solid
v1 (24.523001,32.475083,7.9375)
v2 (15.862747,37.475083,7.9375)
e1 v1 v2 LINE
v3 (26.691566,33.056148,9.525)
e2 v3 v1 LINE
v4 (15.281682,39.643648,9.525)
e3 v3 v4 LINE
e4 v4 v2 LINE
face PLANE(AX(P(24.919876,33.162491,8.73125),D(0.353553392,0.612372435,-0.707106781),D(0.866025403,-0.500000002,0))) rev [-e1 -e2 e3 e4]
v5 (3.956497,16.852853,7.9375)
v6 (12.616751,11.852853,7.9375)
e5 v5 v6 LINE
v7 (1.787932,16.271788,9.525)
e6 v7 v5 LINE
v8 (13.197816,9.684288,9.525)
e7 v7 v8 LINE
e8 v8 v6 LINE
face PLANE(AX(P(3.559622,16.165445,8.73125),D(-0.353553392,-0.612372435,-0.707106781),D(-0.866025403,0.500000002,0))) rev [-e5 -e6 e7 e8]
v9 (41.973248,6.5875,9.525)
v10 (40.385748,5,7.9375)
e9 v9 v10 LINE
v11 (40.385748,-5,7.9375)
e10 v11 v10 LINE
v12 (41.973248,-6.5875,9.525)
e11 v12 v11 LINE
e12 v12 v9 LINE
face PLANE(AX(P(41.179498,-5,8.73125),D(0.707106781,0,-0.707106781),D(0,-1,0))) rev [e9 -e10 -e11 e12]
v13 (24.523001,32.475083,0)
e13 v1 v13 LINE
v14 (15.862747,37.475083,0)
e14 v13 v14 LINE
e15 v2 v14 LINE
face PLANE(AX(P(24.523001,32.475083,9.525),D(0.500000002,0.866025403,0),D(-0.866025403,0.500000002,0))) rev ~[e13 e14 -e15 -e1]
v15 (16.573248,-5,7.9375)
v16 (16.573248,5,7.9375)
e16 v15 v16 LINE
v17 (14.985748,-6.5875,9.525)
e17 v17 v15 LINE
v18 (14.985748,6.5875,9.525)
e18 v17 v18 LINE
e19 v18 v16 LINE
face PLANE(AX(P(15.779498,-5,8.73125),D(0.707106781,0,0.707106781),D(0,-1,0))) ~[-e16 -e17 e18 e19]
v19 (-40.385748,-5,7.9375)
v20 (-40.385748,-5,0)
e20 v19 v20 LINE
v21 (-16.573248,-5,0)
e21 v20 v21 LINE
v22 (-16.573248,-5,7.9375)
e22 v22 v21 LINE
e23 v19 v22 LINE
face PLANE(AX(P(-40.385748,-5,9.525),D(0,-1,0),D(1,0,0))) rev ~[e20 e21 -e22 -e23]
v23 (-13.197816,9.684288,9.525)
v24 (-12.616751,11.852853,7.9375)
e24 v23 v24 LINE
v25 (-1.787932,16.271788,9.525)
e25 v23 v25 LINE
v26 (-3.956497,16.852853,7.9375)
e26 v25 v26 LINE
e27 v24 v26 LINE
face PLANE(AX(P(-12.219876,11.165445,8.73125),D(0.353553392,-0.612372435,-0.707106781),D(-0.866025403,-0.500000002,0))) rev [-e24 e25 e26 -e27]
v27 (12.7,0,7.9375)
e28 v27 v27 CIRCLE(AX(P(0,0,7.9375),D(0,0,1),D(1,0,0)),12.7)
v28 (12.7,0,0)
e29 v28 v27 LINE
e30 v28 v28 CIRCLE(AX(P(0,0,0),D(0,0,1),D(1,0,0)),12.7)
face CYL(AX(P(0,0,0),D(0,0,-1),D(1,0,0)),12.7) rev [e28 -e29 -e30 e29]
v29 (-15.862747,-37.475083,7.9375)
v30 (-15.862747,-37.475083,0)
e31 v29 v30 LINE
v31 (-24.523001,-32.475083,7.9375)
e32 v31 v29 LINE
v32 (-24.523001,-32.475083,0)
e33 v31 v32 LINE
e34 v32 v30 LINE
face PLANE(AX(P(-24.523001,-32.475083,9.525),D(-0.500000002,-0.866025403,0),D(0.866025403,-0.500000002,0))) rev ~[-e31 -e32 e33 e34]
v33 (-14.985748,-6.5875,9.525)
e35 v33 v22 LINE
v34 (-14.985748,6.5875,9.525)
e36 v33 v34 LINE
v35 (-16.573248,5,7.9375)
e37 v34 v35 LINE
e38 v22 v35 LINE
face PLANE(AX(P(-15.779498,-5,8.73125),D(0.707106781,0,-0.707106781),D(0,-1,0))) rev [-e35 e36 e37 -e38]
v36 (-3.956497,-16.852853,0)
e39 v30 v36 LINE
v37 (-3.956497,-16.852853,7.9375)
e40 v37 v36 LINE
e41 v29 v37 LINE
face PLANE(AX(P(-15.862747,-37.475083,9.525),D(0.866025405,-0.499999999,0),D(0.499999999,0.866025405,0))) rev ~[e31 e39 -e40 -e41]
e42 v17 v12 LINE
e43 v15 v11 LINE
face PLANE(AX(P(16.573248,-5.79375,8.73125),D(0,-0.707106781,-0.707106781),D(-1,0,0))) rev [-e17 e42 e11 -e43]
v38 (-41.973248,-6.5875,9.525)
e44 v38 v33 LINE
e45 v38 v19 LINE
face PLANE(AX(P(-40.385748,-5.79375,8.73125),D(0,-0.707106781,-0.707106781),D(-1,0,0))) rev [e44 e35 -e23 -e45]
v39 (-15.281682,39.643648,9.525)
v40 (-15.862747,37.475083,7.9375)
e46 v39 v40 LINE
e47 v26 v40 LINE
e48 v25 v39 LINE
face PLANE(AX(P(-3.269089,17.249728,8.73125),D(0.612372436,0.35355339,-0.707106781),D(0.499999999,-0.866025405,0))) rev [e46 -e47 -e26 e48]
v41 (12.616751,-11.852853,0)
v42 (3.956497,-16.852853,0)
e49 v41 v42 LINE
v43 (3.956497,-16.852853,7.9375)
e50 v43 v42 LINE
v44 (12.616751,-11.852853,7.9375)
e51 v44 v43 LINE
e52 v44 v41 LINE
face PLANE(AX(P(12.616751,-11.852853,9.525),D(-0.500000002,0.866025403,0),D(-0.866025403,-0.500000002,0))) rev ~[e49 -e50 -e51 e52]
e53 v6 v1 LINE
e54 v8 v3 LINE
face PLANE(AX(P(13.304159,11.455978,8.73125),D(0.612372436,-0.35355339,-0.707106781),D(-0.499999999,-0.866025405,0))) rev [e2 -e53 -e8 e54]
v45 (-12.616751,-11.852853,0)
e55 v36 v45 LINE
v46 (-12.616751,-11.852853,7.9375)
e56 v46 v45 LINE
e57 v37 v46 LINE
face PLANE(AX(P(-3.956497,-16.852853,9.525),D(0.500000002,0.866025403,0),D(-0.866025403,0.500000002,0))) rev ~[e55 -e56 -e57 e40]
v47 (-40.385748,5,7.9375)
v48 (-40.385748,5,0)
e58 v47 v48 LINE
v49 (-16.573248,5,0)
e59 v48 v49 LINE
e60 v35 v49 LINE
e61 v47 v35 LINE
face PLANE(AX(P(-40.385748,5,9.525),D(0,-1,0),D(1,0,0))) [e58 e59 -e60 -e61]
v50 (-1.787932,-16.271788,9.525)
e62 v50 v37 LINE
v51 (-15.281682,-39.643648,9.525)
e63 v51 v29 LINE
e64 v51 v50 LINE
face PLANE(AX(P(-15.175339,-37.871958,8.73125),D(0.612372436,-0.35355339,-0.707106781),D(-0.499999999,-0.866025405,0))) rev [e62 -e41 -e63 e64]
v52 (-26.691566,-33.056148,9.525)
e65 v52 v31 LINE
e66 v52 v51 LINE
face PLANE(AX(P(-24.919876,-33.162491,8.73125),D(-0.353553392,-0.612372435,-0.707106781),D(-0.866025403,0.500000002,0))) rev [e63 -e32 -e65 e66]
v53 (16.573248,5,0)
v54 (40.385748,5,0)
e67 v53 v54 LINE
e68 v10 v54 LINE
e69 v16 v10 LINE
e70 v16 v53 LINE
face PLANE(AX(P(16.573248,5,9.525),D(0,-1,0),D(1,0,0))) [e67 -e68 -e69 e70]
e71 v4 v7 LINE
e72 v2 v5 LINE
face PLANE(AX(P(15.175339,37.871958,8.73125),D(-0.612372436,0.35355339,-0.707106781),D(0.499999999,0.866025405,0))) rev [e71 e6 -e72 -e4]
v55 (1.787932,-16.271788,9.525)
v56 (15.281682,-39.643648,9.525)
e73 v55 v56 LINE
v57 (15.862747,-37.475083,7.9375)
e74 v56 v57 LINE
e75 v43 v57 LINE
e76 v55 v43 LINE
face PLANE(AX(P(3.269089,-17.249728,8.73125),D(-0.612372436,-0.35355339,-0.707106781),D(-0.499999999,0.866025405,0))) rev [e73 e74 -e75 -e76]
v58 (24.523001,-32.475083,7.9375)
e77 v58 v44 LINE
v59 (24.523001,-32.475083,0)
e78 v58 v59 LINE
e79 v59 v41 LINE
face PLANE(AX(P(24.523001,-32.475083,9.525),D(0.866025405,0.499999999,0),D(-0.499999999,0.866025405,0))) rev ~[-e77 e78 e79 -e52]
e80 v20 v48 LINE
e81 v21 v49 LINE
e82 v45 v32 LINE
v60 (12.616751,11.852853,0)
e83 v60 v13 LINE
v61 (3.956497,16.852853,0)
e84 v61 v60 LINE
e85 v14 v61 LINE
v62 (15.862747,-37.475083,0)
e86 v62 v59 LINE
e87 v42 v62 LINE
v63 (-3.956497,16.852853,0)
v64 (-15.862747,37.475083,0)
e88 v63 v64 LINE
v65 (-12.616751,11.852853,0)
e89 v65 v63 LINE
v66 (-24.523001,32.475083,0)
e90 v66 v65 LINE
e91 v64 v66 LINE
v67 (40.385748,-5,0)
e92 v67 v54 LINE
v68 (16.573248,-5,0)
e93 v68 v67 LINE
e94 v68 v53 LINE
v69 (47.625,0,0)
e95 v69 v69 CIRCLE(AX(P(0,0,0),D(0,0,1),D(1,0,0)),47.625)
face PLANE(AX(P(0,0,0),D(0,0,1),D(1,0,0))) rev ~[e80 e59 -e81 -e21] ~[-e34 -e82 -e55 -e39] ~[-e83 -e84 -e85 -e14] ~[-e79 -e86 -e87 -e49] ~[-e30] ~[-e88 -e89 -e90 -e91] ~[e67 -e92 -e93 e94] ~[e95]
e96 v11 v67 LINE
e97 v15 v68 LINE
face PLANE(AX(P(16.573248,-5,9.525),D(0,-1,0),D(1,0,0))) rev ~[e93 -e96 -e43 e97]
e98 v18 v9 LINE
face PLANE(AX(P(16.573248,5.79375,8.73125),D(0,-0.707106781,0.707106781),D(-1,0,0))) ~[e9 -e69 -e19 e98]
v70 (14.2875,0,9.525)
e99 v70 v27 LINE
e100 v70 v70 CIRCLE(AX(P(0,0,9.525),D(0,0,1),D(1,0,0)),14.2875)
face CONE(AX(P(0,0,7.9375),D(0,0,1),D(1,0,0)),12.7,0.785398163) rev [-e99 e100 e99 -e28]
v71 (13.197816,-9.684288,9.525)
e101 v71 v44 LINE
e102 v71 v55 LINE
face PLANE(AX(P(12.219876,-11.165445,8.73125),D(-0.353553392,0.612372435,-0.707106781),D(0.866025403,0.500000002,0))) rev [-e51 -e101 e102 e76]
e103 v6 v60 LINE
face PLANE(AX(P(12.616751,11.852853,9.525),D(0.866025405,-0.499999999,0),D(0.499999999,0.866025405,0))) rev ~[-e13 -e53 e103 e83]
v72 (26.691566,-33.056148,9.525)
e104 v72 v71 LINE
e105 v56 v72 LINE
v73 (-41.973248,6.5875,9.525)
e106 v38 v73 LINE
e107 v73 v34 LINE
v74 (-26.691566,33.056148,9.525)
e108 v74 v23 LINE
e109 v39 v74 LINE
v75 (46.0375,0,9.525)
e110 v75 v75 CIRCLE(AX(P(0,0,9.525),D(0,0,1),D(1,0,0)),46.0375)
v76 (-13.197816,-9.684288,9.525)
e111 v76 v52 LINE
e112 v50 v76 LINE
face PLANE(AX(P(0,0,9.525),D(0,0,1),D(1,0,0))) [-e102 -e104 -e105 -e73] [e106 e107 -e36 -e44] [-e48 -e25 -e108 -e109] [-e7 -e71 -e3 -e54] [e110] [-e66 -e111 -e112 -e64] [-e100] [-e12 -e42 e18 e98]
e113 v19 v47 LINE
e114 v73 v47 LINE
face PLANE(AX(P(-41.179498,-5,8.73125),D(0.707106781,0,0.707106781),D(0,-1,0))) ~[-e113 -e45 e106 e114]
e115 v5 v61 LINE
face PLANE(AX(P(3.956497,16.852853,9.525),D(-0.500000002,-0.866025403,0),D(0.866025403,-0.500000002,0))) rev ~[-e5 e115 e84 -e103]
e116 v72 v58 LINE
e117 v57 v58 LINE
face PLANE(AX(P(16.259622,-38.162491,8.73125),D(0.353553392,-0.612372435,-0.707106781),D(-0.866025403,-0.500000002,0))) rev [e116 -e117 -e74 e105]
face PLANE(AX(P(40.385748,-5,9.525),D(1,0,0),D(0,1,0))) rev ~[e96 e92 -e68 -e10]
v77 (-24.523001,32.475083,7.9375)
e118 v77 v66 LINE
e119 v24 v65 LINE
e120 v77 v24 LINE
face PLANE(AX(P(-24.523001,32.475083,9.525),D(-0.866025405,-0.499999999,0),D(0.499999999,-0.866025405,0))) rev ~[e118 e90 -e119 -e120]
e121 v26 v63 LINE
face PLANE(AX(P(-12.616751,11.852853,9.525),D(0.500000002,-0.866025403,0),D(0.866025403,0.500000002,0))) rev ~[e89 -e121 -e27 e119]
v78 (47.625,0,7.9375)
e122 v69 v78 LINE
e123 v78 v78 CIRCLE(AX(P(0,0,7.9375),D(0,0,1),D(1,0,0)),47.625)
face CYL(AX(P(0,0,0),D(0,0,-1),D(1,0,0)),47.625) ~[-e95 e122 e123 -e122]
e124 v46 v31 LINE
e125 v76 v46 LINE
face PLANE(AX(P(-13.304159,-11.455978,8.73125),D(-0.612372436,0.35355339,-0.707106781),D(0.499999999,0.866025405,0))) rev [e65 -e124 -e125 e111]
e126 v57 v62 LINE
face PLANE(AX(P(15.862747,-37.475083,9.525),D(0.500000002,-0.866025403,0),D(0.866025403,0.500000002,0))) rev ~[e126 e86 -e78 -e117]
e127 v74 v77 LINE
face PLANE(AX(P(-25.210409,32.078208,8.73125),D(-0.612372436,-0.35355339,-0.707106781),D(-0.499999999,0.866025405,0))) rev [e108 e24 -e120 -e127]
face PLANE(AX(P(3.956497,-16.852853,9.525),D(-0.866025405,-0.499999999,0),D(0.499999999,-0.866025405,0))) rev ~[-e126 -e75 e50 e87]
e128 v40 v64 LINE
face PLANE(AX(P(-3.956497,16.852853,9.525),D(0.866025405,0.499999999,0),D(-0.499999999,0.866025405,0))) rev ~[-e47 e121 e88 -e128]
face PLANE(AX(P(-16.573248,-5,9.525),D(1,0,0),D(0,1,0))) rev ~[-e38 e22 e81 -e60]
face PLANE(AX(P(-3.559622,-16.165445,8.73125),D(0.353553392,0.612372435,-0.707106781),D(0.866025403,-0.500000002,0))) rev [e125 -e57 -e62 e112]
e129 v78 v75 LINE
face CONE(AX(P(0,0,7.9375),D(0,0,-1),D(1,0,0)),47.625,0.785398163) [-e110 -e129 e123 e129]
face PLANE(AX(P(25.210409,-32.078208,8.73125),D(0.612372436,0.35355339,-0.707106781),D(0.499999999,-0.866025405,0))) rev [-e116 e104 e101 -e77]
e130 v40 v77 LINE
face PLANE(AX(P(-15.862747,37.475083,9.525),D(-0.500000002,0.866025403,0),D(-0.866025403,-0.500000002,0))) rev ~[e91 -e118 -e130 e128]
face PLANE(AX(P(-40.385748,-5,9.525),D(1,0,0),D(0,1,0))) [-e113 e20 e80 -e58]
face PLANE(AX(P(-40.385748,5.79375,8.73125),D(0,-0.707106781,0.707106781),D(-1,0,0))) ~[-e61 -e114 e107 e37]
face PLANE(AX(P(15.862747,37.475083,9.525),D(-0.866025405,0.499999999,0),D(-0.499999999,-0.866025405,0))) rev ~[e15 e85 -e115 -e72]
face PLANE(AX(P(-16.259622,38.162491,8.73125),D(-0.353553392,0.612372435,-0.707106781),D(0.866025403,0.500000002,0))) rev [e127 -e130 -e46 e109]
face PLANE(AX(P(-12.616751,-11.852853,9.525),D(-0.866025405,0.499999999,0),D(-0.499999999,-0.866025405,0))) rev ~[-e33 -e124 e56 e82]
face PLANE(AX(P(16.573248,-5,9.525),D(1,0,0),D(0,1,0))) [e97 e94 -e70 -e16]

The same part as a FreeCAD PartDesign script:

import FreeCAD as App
import Part
import Sketcher

V = App.Vector
Q = App.Units.Quantity


def edges_at(feature, points):
    """Names of the edges that pass closest to the given points."""
    edges = feature.Shape.Edges
    near = lambda p: min(range(len(edges)), key=lambda i: edges[i].distToShape(Part.Vertex(*p))[0])
    return sorted({f"Edge{near(p) + 1}" for p in points})

doc = App.newDocument("Part")
body = doc.addObject("PartDesign::Body", "Body")

sketch1 = body.newObject("Sketcher::SketchObject", "Sketch")
sketch1.AttachmentSupport = (doc.getObject("XY_Plane"), [""])
sketch1.MapMode = "FlatFace"
sketch1.addGeometry([
    Part.Circle(V(0, 0, 0), V(0, 0, 1), 48),
    Part.Circle(V(0, 0, 0), V(0, 0, 1), 13),
], False)
sketch1.addConstraint([
    Sketcher.Constraint("Coincident", 0, 3, -1, 1),
    Sketcher.Constraint("Coincident", 1, 3, -1, 1),
    Sketcher.Constraint("Diameter", 1, Q("1 in")),
    Sketcher.Constraint("Diameter", 0, Q("3.75 in")),
])
pad1 = body.newObject("PartDesign::Pad", "Pad")
pad1.Profile = sketch1
pad1.Length = Q("0.375 in")

sketch2 = body.newObject("Sketcher::SketchObject", "Sketch001")
sketch2.AttachmentSupport = (doc.getObject("XY_Plane"), [""])
sketch2.MapMode = "FlatFace"
sketch2.AttachmentOffset = App.Placement(V(0, 0, 0.375 * 25.4), App.Rotation())
sketch2.addGeometry([
    Part.LineSegment(V(-40, 5, 0), V(-40, -5, 0)),
    Part.LineSegment(V(-40, -5, 0), V(-17, -5, 0)),
    Part.LineSegment(V(-17, -5, 0), V(-17, 5, 0)),
    Part.LineSegment(V(-17, 5, 0), V(-40, 5, 0)),
    Part.LineSegment(V(-13, 12, 0), V(-4, 17, 0)),
    Part.LineSegment(V(-4, 17, 0), V(-16, 37, 0)),
    Part.LineSegment(V(-16, 37, 0), V(-25, 32, 0)),
    Part.LineSegment(V(-25, 32, 0), V(-13, 12, 0)),
    Part.LineSegment(V(4, 17, 0), V(13, 12, 0)),
    Part.LineSegment(V(13, 12, 0), V(25, 32, 0)),
    Part.LineSegment(V(25, 32, 0), V(16, 37, 0)),
    Part.LineSegment(V(16, 37, 0), V(4, 17, 0)),
    Part.LineSegment(V(17, 5, 0), V(17, -5, 0)),
    Part.LineSegment(V(17, -5, 0), V(40, -5, 0)),
    Part.LineSegment(V(40, -5, 0), V(40, 5, 0)),
    Part.LineSegment(V(40, 5, 0), V(17, 5, 0)),
    Part.LineSegment(V(13, -12, 0), V(4, -17, 0)),
    Part.LineSegment(V(4, -17, 0), V(16, -37, 0)),
    Part.LineSegment(V(16, -37, 0), V(25, -32, 0)),
    Part.LineSegment(V(25, -32, 0), V(13, -12, 0)),
    Part.LineSegment(V(-4, -17, 0), V(-13, -12, 0)),
    Part.LineSegment(V(-13, -12, 0), V(-25, -32, 0)),
    Part.LineSegment(V(-25, -32, 0), V(-16, -37, 0)),
    Part.LineSegment(V(-16, -37, 0), V(-4, -17, 0)),
], False)
sketch2.addConstraint([
    Sketcher.Constraint("Coincident", 0, 2, 1, 1),
    Sketcher.Constraint("Coincident", 1, 2, 2, 1),
    Sketcher.Constraint("Coincident", 2, 2, 3, 1),
    Sketcher.Constraint("Coincident", 3, 2, 0, 1),
    Sketcher.Constraint("Coincident", 4, 2, 5, 1),
    Sketcher.Constraint("Coincident", 5, 2, 6, 1),
    Sketcher.Constraint("Coincident", 6, 2, 7, 1),
    Sketcher.Constraint("Coincident", 7, 2, 4, 1),
    Sketcher.Constraint("Coincident", 8, 2, 9, 1),
    Sketcher.Constraint("Coincident", 9, 2, 10, 1),
    Sketcher.Constraint("Coincident", 10, 2, 11, 1),
    Sketcher.Constraint("Coincident", 11, 2, 8, 1),
    Sketcher.Constraint("Coincident", 12, 2, 13, 1),
    Sketcher.Constraint("Coincident", 13, 2, 14, 1),
    Sketcher.Constraint("Coincident", 14, 2, 15, 1),
    Sketcher.Constraint("Coincident", 15, 2, 12, 1),
    Sketcher.Constraint("Coincident", 16, 2, 17, 1),
    Sketcher.Constraint("Coincident", 17, 2, 18, 1),
    Sketcher.Constraint("Coincident", 18, 2, 19, 1),
    Sketcher.Constraint("Coincident", 19, 2, 16, 1),
    Sketcher.Constraint("Coincident", 20, 2, 21, 1),
    Sketcher.Constraint("Coincident", 21, 2, 22, 1),
    Sketcher.Constraint("Coincident", 22, 2, 23, 1),
    Sketcher.Constraint("Coincident", 23, 2, 20, 1),
    Sketcher.Constraint("Vertical", 0),
    Sketcher.Constraint("Horizontal", 1),
    Sketcher.Constraint("Vertical", 2),
    Sketcher.Constraint("Horizontal", 3),
    Sketcher.Constraint("Vertical", 12),
    Sketcher.Constraint("Horizontal", 13),
    Sketcher.Constraint("Vertical", 14),
    Sketcher.Constraint("Horizontal", 15),
    Sketcher.Constraint("Symmetric", 2, 2, 12, 2, -1, 1),
    Sketcher.Constraint("Symmetric", 0, 2, 14, 2, -1, 1),
    Sketcher.Constraint("Symmetric", 4, 2, 16, 2, -1, 1),
    Sketcher.Constraint("Symmetric", 5, 2, 17, 2, -1, 1),
    Sketcher.Constraint("Symmetric", 6, 2, 18, 2, -1, 1),
    Sketcher.Constraint("Symmetric", 7, 2, 19, 2, -1, 1),
    Sketcher.Constraint("Symmetric", 8, 2, 20, 2, -1, 1),
    Sketcher.Constraint("Symmetric", 9, 2, 21, 2, -1, 1),
    Sketcher.Constraint("Symmetric", 10, 2, 22, 2, -1, 1),
    Sketcher.Constraint("Symmetric", 11, 2, 23, 2, -1, 1),
    Sketcher.Constraint("Symmetric", 7, 2, 8, 2, -2),
    Sketcher.Constraint("Symmetric", 6, 2, 9, 2, -2),
    Sketcher.Constraint("Symmetric", 5, 2, 10, 2, -2),
    Sketcher.Constraint("Symmetric", 4, 2, 11, 2, -2),
    Sketcher.Constraint("Perpendicular", 4, 5),
    Sketcher.Constraint("Perpendicular", 5, 6),
    Sketcher.Constraint("Perpendicular", 6, 7),
    Sketcher.Constraint("Horizontal", 1, 2, 12, 2),
    Sketcher.Constraint("Angle", 4, Q("30 deg")),
    Sketcher.Constraint("DistanceX", 1, 1, 1, 2, Q("0.9375 in")),
    Sketcher.Constraint("Distance", 5, Q("0.9375 in")),
    Sketcher.Constraint("DistanceY", 0, 2, 0, 1, Q("10 mm")),
    Sketcher.Constraint("Distance", 4, Q("10 mm")),
    Sketcher.Constraint("DistanceX", 6, 2, -1, 1, Q("24.523001 mm")),
    Sketcher.Constraint("DistanceX", 2, 2, 5, 2, Q("0.710501 mm")),
    Sketcher.Constraint("DistanceY", -1, 1, 4, 2, Q("16.852853 mm")),
])
pocket1 = body.newObject("PartDesign::Pocket", "Pocket")
pocket1.Profile = sketch2
pocket1.Type = "ThroughAll"
doc.recompute()

chamfer = body.newObject("PartDesign::Chamfer", "Chamfer")
chamfer.Base = (pocket1, edges_at(pocket1, [
    (-28.479, 5, 9.525),
    (-40.386, 0, 9.525),
    (-28.479, -5, 9.525),
    (-16.573, 0, 9.525),
    (-12.7, 0, 9.525),
    (-8.287, 14.353, 9.525),
    (-18.57, 22.164, 9.525),
    (-9.91, 27.164, 9.525),
    (-20.193, 34.975, 9.525),
    (9.91, 27.164, 9.525),
    (20.193, 34.975, 9.525),
    (8.287, 14.353, 9.525),
    (18.57, 22.164, 9.525),
    (16.573, 0, 9.525),
    (28.479, 5, 9.525),
    (40.386, 0, 9.525),
    (28.479, -5, 9.525),
    (18.57, -22.164, 9.525),
    (8.287, -14.353, 9.525),
    (9.91, -27.164, 9.525),
    (20.193, -34.975, 9.525),
    (-9.91, -27.164, 9.525),
    (-20.193, -34.975, 9.525),
    (-18.57, -22.164, 9.525),
    (-8.287, -14.353, 9.525),
    (-47.625, 0, 9.525),
]))
chamfer.Size = Q("0.0625 in")

doc.recompute()
